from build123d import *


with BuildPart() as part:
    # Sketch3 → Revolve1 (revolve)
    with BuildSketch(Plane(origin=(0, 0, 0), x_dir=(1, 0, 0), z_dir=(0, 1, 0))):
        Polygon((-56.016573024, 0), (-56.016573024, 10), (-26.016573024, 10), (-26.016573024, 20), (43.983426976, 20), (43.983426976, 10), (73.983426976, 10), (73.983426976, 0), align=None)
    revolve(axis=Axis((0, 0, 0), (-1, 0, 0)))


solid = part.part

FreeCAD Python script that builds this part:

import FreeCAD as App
import Part
import Sketcher
from FreeCAD import Vector

doc = App.newDocument("Part")
body = doc.addObject("PartDesign::Body", "Body")

# Sketch on XZ plane
sketch1 = body.newObject("Sketcher::SketchObject", "Sketch")
sketch1.AttachmentSupport = (doc.getObject("XZ_Plane"), [""])
sketch1.MapMode = "FlatFace"
sketch1.addGeometry([
    Part.LineSegment(Vector(-56, -10, 0), Vector(-56, 0, 0)),  # 0
    Part.LineSegment(Vector(-56, 0, 0), Vector(74, 0, 0)),  # 1
    Part.LineSegment(Vector(74, 0, 0), Vector(74, -10, 0)),  # 2
    Part.LineSegment(Vector(74, -10, 0), Vector(44, -10, 0)),  # 3
    Part.LineSegment(Vector(44, -10, 0), Vector(44, -20, 0)),  # 4
    Part.LineSegment(Vector(44, -20, 0), Vector(-26, -20, 0)),  # 5
    Part.LineSegment(Vector(-26, -20, 0), Vector(-26, -10, 0)),  # 6
    Part.LineSegment(Vector(-26, -10, 0), Vector(-56, -10, 0)),  # 7
], False)
sketch1.addConstraint([
    Sketcher.Constraint("Coincident", 0, 2, 1, 1),
    Sketcher.Constraint("Coincident", 1, 2, 2, 1),
    Sketcher.Constraint("Coincident", 2, 2, 3, 1),
    Sketcher.Constraint("Coincident", 3, 2, 4, 1),
    Sketcher.Constraint("Coincident", 4, 2, 5, 1),
    Sketcher.Constraint("Coincident", 5, 2, 6, 1),
    Sketcher.Constraint("Coincident", 6, 2, 7, 1),
    Sketcher.Constraint("Coincident", 7, 2, 0, 1),
    Sketcher.Constraint("Vertical", 0),
    Sketcher.Constraint("Horizontal", 1),
    Sketcher.Constraint("Vertical", 2),
    Sketcher.Constraint("Horizontal", 3),
    Sketcher.Constraint("Vertical", 4),
    Sketcher.Constraint("Horizontal", 5),
    Sketcher.Constraint("Vertical", 6),
    Sketcher.Constraint("Horizontal", 7),
    Sketcher.Constraint("PointOnObject", 0, 2, -1),
    Sketcher.Constraint("Horizontal", 3, 2, 6, 2),
    Sketcher.Constraint("Equal", 3, 7),
    Sketcher.Constraint("Equal", 2, 4),
    Sketcher.Constraint("DistanceX", 1, 1, 1, 2, 130.0),
    Sketcher.Constraint("DistanceX", 3, 2, 3, 1, 30.0),
    Sketcher.Constraint("DistanceY", 0, 1, 0, 2, 10.0),
    Sketcher.Constraint("DistanceX", 0, 2, -1, 1, 56.016573),
])
revolution = body.newObject("PartDesign::Revolution", "Revolution")
revolution.Profile = sketch1
revolution.ReferenceAxis = (sketch1, ["H_Axis"])
revolution.Angle = 360

doc.recompute()
